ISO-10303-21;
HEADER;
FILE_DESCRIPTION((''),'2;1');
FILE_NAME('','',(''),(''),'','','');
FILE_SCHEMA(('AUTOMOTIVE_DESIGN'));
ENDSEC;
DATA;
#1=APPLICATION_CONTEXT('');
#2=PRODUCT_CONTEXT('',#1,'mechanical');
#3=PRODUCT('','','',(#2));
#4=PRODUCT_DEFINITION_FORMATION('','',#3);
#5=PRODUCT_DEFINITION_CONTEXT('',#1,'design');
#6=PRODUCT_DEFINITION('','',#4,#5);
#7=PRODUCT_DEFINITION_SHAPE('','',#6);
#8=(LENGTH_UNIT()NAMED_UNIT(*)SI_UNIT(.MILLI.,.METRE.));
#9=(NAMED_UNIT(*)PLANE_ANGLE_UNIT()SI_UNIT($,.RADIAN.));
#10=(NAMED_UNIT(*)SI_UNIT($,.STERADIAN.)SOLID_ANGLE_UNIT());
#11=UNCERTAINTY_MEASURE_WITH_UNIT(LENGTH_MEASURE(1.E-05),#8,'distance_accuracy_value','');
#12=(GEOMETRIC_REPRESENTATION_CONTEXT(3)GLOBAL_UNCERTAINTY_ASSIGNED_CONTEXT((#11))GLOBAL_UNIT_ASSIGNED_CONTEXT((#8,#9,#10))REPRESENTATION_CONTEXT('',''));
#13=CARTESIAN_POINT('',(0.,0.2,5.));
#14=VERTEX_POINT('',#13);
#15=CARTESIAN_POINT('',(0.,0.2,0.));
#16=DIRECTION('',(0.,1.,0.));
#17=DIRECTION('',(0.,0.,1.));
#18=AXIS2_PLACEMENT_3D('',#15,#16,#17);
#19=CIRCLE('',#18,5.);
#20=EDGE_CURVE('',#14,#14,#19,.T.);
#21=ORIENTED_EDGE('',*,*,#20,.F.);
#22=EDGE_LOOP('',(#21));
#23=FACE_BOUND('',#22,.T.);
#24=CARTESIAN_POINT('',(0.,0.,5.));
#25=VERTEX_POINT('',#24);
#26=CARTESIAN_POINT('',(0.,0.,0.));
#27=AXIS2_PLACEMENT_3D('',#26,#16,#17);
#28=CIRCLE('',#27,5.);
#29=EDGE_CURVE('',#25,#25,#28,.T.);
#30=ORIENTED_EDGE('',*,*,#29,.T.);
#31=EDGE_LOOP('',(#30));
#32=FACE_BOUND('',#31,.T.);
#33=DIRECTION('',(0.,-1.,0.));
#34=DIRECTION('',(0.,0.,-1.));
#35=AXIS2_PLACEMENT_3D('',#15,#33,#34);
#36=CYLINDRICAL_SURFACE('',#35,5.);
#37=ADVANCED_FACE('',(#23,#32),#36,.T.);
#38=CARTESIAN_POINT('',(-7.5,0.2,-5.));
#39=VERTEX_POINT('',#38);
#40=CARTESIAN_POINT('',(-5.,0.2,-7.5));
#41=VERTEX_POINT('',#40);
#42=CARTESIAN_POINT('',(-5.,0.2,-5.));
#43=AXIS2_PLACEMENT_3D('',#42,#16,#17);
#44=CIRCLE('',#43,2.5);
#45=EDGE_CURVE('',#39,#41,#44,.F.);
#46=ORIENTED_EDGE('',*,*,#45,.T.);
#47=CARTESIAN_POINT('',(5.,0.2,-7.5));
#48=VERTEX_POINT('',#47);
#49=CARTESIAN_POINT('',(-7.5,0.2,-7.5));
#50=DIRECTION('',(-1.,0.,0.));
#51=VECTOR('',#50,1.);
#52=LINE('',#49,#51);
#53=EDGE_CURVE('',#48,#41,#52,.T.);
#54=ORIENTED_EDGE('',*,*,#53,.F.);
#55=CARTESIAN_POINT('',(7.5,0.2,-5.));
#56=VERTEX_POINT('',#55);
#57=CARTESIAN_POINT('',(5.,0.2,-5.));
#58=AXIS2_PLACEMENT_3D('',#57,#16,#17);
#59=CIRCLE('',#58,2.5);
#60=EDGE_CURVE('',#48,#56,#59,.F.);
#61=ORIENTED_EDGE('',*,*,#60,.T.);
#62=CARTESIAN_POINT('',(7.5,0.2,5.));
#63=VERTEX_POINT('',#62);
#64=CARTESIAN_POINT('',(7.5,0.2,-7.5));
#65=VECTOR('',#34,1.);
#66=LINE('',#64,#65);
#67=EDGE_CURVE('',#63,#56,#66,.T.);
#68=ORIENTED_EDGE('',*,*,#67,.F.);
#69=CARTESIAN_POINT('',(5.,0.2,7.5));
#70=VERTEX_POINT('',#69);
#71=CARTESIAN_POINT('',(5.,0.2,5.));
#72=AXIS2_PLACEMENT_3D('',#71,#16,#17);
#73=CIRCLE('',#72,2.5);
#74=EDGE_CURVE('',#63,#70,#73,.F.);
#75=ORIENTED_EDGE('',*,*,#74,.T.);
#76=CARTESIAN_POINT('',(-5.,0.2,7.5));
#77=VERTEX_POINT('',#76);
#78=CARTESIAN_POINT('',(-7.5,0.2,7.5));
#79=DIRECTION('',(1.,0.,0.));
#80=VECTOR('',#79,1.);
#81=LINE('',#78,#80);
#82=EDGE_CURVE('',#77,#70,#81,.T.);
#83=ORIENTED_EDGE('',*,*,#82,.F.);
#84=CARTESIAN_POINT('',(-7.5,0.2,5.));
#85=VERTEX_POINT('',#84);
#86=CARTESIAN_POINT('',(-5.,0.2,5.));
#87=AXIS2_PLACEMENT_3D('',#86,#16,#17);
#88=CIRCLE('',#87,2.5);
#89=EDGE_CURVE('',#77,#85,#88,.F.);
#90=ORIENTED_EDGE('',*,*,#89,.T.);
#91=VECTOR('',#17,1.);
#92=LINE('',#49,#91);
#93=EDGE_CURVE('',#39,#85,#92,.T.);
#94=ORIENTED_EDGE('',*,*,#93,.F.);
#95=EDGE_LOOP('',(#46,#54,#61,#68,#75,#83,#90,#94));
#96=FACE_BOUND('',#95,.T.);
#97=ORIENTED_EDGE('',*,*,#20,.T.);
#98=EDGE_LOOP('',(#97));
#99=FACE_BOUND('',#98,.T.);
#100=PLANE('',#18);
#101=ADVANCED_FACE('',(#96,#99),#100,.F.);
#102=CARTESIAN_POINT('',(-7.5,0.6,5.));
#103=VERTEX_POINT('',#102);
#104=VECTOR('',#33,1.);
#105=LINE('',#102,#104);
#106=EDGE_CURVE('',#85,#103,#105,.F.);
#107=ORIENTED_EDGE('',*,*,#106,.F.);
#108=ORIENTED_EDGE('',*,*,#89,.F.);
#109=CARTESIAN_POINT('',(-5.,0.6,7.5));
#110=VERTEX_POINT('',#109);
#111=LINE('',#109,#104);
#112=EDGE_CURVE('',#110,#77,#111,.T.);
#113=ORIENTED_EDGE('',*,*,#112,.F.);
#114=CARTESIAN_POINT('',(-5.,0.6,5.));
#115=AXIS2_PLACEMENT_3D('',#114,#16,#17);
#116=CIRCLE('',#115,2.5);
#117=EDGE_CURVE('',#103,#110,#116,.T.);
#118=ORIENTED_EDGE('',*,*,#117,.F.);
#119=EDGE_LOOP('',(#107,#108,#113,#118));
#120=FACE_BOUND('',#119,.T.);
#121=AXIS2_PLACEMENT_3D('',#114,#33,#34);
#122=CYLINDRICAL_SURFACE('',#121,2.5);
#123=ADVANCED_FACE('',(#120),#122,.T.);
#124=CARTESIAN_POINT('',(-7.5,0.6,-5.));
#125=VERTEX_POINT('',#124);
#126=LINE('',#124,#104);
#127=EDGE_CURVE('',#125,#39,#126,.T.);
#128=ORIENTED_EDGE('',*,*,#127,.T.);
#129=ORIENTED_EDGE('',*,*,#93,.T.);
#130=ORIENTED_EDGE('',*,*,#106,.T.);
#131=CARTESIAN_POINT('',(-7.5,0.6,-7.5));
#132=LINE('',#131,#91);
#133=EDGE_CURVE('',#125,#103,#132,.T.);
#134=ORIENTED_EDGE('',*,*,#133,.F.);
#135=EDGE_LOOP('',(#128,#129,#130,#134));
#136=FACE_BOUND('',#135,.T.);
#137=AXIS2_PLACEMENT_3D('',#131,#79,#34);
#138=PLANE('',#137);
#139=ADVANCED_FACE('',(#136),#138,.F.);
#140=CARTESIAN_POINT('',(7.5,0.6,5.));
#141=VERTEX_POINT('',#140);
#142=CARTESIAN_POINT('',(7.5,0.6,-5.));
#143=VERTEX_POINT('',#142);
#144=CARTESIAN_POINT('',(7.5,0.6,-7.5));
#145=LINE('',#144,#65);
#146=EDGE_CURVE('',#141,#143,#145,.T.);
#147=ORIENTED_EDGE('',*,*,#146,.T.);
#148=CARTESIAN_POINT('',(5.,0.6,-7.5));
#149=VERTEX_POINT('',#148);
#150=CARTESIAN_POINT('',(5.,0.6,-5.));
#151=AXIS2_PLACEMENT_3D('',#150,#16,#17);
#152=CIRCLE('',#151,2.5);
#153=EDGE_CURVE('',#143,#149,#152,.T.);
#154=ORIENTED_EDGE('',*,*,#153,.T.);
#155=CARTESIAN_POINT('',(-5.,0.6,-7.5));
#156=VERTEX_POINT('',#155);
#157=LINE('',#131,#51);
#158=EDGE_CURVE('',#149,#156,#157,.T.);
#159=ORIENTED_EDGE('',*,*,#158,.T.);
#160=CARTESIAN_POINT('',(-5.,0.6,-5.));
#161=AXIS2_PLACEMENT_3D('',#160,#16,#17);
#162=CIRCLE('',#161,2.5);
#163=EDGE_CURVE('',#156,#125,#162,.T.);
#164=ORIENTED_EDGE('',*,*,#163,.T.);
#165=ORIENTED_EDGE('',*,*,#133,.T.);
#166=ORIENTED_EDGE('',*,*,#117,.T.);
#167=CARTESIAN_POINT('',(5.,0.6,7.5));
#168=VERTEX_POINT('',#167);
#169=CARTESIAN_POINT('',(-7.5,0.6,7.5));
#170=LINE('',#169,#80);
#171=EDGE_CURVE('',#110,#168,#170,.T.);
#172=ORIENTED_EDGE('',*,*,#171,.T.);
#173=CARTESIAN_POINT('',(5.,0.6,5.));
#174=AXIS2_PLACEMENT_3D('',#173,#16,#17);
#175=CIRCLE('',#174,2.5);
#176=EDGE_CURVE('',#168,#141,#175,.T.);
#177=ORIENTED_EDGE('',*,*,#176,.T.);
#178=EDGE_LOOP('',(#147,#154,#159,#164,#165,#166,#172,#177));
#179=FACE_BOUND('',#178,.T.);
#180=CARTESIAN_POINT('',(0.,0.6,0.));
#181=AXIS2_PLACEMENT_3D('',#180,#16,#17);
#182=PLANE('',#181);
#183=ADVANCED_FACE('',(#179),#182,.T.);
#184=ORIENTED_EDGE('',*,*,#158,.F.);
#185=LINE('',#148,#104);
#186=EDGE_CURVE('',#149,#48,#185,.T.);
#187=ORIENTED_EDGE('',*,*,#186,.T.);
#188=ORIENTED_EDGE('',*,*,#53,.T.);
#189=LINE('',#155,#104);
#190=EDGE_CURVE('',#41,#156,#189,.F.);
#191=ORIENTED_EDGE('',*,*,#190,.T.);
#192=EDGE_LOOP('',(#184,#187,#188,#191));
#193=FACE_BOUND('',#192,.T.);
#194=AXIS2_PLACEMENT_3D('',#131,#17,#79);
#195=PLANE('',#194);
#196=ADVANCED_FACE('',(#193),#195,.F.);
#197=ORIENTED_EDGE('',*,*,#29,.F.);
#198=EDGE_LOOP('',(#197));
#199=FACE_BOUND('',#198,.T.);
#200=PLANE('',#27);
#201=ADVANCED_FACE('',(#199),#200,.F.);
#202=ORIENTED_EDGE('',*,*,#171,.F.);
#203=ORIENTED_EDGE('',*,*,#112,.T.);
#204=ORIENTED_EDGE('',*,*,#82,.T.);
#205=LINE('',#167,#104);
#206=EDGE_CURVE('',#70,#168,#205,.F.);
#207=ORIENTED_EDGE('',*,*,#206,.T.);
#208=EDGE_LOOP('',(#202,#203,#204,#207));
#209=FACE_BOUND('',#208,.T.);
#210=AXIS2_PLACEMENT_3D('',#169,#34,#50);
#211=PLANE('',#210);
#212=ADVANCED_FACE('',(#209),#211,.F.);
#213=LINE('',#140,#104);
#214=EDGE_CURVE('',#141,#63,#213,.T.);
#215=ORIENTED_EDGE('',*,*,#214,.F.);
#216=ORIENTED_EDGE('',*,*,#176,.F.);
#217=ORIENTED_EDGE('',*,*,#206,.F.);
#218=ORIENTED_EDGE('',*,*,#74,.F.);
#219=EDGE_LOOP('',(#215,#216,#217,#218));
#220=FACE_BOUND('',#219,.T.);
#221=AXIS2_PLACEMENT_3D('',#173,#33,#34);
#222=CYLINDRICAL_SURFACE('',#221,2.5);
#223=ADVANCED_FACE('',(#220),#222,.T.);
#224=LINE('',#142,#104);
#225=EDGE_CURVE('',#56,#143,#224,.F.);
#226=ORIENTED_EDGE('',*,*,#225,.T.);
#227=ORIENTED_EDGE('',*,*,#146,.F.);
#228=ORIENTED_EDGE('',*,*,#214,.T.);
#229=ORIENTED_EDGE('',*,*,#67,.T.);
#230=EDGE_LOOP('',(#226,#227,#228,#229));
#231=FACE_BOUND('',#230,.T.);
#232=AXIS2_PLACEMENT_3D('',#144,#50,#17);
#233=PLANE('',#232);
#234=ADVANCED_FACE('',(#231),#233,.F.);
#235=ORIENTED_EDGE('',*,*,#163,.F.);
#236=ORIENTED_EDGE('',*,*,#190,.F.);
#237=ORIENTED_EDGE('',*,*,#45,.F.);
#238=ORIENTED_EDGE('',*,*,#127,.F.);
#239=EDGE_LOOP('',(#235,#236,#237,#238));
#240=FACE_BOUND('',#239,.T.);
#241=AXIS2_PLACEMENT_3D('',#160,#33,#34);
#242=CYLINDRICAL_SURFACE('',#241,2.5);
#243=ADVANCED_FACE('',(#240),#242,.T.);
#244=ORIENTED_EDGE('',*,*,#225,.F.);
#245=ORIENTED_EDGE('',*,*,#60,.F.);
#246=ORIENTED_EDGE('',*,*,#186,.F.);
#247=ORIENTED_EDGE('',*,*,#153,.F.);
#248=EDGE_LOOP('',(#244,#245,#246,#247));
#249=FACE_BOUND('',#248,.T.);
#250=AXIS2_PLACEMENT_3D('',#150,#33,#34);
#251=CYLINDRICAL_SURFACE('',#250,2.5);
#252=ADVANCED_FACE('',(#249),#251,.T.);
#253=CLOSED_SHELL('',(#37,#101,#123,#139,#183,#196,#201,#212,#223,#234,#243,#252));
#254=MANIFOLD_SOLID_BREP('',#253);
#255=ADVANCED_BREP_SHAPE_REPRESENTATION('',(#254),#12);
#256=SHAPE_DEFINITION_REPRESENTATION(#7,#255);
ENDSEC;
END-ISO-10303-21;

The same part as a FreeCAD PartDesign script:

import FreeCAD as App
import Part
import Sketcher

V = App.Vector


def edges_at(feature, points):
    """Names of the edges that pass closest to the given points."""
    edges = feature.Shape.Edges
    near = lambda p: min(range(len(edges)), key=lambda i: edges[i].distToShape(Part.Vertex(*p))[0])
    return sorted({f"Edge{near(p) + 1}" for p in points})


def add_polygon(sketch, points):
    """Adds a closed chain of lines whose ends are joined by coincident constraints."""
    first, n = sketch.GeometryCount, len(points)
    for a, b in zip(points, points[1:] + points[:1]):
        sketch.addGeometry(Part.LineSegment(App.Vector(*a, 0), App.Vector(*b, 0)), False)
    for i in range(n):
        sketch.addConstraint(Sketcher.Constraint("Coincident", first + i, 2, first + (i + 1) % n, 1))

doc = App.newDocument("Part")
body = doc.addObject("PartDesign::Body", "Body")

sketch1 = body.newObject("Sketcher::SketchObject", "Sketch")
sketch1.AttachmentSupport = (doc.getObject("XZ_Plane"), [""])
sketch1.MapMode = "FlatFace"
sketch1.addGeometry(Part.Circle(V(0, 0, 0), V(0, 0, 1), 5), False)
sketch1.addConstraint(Sketcher.Constraint("Coincident", 0, 3, -1, 1))
sketch1.addConstraint(Sketcher.Constraint("Diameter", 0, 10.0))
pad1 = body.newObject("PartDesign::Pad", "Pad")
pad1.Profile = sketch1
pad1.Length = 0.2
pad1.Reversed = True

sketch2 = body.newObject("Sketcher::SketchObject", "Sketch001")
sketch2.AttachmentSupport = (doc.getObject("XZ_Plane"), [""])
sketch2.MapMode = "FlatFace"
sketch2.AttachmentOffset = App.Placement(V(0, 0, -0.2), App.Rotation())
add_polygon(sketch2, [(-7.5, -7.5), (-7.5, 7.5), (7.5, 7.5), (7.5, -7.5)])
sketch2.addConstraint(Sketcher.Constraint("Vertical", 0))
sketch2.addConstraint(Sketcher.Constraint("Horizontal", 1))
sketch2.addConstraint(Sketcher.Constraint("Vertical", 2))
sketch2.addConstraint(Sketcher.Constraint("Horizontal", 3))
sketch2.addConstraint(Sketcher.Constraint("Symmetric", 0, 2, 2, 2, -1, 1))
sketch2.addConstraint(Sketcher.Constraint("Equal", 3, 0))
sketch2.addConstraint(Sketcher.Constraint("DistanceX", 1, 1, 1, 2, 15.0))
pad2 = body.newObject("PartDesign::Pad", "Pad001")
pad2.Profile = sketch2
pad2.Length = 0.4
pad2.Reversed = True
doc.recompute()

fillet = body.newObject("PartDesign::Fillet", "Fillet")
fillet.Base = (pad2, edges_at(pad2, [
    (7.5, 0.4, 7.5),
    (7.5, 0.4, -7.5),
    (-7.5, 0.4, -7.5),
    (-7.5, 0.4, 7.5),
]))
fillet.Radius = 2.5

doc.recompute()
